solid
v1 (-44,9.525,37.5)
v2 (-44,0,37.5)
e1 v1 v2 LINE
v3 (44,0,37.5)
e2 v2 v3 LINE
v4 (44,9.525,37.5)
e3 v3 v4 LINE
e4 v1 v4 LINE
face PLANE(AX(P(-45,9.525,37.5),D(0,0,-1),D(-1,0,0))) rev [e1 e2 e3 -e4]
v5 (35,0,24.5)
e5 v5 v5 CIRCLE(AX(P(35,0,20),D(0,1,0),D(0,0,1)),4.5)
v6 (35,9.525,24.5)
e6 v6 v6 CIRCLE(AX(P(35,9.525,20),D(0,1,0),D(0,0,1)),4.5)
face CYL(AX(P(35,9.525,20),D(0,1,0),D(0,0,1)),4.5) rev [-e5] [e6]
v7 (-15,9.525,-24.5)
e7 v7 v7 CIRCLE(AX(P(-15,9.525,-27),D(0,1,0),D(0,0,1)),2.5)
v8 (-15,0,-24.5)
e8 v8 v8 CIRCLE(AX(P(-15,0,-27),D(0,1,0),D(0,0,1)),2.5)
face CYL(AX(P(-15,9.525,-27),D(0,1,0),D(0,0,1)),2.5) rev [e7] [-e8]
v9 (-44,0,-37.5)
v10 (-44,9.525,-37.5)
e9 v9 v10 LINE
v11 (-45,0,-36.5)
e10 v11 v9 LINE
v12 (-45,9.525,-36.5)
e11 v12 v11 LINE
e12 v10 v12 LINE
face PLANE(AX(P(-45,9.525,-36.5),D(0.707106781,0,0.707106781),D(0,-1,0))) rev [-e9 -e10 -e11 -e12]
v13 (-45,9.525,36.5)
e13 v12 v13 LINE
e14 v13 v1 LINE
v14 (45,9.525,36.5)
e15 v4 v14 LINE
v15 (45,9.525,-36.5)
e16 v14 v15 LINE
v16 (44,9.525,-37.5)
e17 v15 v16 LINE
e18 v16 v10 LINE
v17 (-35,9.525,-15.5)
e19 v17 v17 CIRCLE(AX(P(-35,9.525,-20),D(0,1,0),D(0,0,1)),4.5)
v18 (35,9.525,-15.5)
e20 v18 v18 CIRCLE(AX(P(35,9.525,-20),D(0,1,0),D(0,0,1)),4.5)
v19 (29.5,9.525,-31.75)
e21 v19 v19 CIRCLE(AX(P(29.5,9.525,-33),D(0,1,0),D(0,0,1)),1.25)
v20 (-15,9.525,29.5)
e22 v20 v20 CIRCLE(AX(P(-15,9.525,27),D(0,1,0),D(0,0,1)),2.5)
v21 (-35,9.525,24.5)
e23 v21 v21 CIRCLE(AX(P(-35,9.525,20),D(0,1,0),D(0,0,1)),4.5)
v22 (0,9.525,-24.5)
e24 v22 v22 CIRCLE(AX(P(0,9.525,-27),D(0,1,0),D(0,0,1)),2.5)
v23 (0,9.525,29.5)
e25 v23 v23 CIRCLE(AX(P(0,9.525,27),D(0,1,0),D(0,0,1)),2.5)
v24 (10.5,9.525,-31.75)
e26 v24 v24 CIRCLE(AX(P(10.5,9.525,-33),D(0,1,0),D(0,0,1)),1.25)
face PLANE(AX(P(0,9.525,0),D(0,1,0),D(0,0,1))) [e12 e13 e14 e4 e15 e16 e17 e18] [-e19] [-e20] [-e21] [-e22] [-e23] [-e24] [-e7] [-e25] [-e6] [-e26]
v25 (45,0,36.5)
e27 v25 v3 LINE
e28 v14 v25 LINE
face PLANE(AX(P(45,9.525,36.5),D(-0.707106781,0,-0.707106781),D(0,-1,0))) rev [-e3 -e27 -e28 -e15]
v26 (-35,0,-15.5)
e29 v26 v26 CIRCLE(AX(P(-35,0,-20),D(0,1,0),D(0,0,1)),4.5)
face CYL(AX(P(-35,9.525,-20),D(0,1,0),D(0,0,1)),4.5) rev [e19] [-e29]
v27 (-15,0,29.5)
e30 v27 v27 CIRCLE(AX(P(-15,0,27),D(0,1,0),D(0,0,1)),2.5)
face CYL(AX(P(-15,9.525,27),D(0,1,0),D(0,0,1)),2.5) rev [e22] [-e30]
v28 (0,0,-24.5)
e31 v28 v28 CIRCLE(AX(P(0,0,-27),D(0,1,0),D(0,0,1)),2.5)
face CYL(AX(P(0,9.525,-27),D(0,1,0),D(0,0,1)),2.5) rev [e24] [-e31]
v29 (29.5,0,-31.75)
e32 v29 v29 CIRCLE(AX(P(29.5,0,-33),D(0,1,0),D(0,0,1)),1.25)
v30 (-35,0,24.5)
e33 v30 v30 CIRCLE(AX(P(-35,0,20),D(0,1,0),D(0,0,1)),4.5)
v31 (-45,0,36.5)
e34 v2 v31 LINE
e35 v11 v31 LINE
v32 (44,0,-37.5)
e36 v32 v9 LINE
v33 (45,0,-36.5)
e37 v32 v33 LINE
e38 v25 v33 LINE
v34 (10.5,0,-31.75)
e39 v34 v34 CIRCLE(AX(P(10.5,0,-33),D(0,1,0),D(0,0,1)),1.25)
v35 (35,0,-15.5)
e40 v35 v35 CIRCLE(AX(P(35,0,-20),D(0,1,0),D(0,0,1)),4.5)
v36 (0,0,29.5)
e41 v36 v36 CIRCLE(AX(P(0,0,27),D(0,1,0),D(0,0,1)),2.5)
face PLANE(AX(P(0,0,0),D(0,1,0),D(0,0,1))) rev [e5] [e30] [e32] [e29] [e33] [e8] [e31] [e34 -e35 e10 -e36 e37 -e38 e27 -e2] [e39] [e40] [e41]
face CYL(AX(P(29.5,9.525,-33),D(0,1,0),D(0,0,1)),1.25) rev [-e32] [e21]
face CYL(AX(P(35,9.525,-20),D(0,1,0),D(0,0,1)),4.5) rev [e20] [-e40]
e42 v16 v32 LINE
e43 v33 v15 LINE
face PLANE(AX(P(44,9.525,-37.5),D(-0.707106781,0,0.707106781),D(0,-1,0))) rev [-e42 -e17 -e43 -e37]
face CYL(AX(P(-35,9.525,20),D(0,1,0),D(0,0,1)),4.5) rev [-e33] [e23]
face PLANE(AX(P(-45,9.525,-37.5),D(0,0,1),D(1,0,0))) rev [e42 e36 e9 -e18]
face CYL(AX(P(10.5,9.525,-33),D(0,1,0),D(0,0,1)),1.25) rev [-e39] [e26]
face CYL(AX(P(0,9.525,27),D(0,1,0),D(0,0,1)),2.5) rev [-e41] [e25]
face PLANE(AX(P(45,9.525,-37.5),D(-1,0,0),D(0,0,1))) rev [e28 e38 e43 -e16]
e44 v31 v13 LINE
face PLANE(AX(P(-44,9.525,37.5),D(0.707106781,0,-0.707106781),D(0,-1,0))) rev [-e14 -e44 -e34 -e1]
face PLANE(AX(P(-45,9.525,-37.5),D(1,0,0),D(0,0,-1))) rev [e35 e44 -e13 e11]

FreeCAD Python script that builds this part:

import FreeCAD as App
import Part
import Sketcher
from FreeCAD import Vector
Q = App.Units.Quantity


def edges_at(feature, points):
    """Names of the edges that pass closest to the given points."""
    edges = feature.Shape.Edges
    near = lambda p: min(range(len(edges)), key=lambda i: edges[i].distToShape(Part.Vertex(*p))[0])
    return sorted({f"Edge{near(p) + 1}" for p in points})


def add_polygon(sketch, points):
    """Adds a closed chain of lines whose ends are joined by coincident constraints."""
    first, n = sketch.GeometryCount, len(points)
    for a, b in zip(points, points[1:] + points[:1]):
        sketch.addGeometry(Part.LineSegment(App.Vector(*a, 0), App.Vector(*b, 0)), False)
    for i in range(n):
        sketch.addConstraint(Sketcher.Constraint("Coincident", first + i, 2, first + (i + 1) % n, 1))

doc = App.newDocument("Part")
body = doc.addObject("PartDesign::Body", "Body")

sketch1 = body.newObject("Sketcher::SketchObject", "Sketch")
sketch1.AttachmentSupport = (doc.getObject("XZ_Plane"), [""])
sketch1.MapMode = "FlatFace"
add_polygon(sketch1, [(-45, -37.5), (-45, 37.5), (45, 37.5), (45, -37.5)])
sketch1.addConstraint([
    Sketcher.Constraint("Vertical", 0),
    Sketcher.Constraint("Horizontal", 1),
    Sketcher.Constraint("Vertical", 2),
    Sketcher.Constraint("Horizontal", 3),
    Sketcher.Constraint("Symmetric", 0, 2, 2, 2, -1, 1),
    Sketcher.Constraint("DistanceX", 1, 1, 1, 2, Q("90 mm")),
    Sketcher.Constraint("DistanceY", 0, 1, 0, 2, Q("75 mm")),
])
pad1 = body.newObject("PartDesign::Pad", "Pad")
pad1.Profile = sketch1
pad1.Length = 9.525
pad1.Reversed = True

sketch2 = body.newObject("Sketcher::SketchObject", "Sketch001")
sketch2.AttachmentSupport = (doc.getObject("XZ_Plane"), [""])
sketch2.MapMode = "FlatFace"
sketch2.AttachmentOffset = App.Placement(Vector(0, 0, -9.525), App.Rotation())
sketch2.addGeometry([
    Part.Circle(Vector(-35, -20, 0), Vector(0, 0, 1), 4.5),
    Part.Circle(Vector(35, -20, 0), Vector(0, 0, 1), 4.5),
    Part.Circle(Vector(35, 20, 0), Vector(0, 0, 1), 4.5),
    Part.Circle(Vector(-35, 20, 0), Vector(0, 0, 1), 4.5),
], False)
sketch2.addConstraint([
    Sketcher.Constraint("Equal", 0, 1),
    Sketcher.Constraint("Equal", 1, 2),
    Sketcher.Constraint("Equal", 2, 3),
    Sketcher.Constraint("Symmetric", 0, 3, 2, 3, -1, 1),
    Sketcher.Constraint("Symmetric", 1, 3, 3, 3, -1, 1),
    Sketcher.Constraint("Symmetric", 0, 3, 1, 3, -2),
    Sketcher.Constraint("Diameter", 0, Q("9 mm")),
    Sketcher.Constraint("DistanceX", 0, 3, -1, 1, Q("35 mm")),
    Sketcher.Constraint("DistanceY", 0, 3, -1, 1, Q("20 mm")),
])
doc.recompute()
hole = body.newObject("PartDesign::Hole", "Hole")
hole.Profile = sketch2
hole.ThreadType = "None"
hole.Diameter = 9
hole.DepthType = "ThroughAll"
hole.Reversed = True

sketch3 = body.newObject("Sketcher::SketchObject", "Sketch002")
sketch3.AttachmentSupport = (doc.getObject("XZ_Plane"), [""])
sketch3.MapMode = "FlatFace"
sketch3.AttachmentOffset = App.Placement(Vector(0, 0, -9.525), App.Rotation())
sketch3.addGeometry([
    Part.Circle(Vector(-15, -27, 0), Vector(0, 0, 1), 2.5),
    Part.Circle(Vector(0, -27, 0), Vector(0, 0, 1), 2.5),
    Part.Circle(Vector(0, 27, 0), Vector(0, 0, 1), 2.5),
    Part.Circle(Vector(-15, 27, 0), Vector(0, 0, 1), 2.5),
], False)
sketch3.addConstraint([
    Sketcher.Constraint("Equal", 0, 1),
    Sketcher.Constraint("Equal", 1, 2),
    Sketcher.Constraint("Equal", 2, 3),
    Sketcher.Constraint("Symmetric", 1, 3, 2, 3, -1, 1),
    Sketcher.Constraint("Symmetric", 0, 3, 3, 3, -1),
    Sketcher.Constraint("PointOnObject", 1, 3, -2),
    Sketcher.Constraint("Horizontal", 0, 3, 1, 3),
    Sketcher.Constraint("Diameter", 0, Q("5 mm")),
    Sketcher.Constraint("DistanceX", 0, 3, -1, 1, Q("15 mm")),
    Sketcher.Constraint("DistanceY", 0, 3, -1, 1, Q("27 mm")),
])
doc.recompute()
hole2 = body.newObject("PartDesign::Hole", "Hole001")
hole2.Profile = sketch3
hole2.ThreadType = "None"
hole2.Diameter = 5
hole2.DepthType = "ThroughAll"
hole2.Reversed = True

sketch4 = body.newObject("Sketcher::SketchObject", "Sketch003")
sketch4.AttachmentSupport = (doc.getObject("XZ_Plane"), [""])
sketch4.MapMode = "FlatFace"
sketch4.AttachmentOffset = App.Placement(Vector(0, 0, -9.525), App.Rotation())
sketch4.addGeometry([
    Part.Circle(Vector(10.5, -33, 0), Vector(0, 0, 1), 1.25),
    Part.Circle(Vector(29.5, -33, 0), Vector(0, 0, 1), 1.25),
], False)
sketch4.addConstraint([
    Sketcher.Constraint("Equal", 0, 1),
    Sketcher.Constraint("Horizontal", 0, 3, 1, 3),
    Sketcher.Constraint("Diameter", 0, Q("2.5 mm")),
    Sketcher.Constraint("DistanceY", 0, 3, -1, 1, Q("33 mm")),
    Sketcher.Constraint("DistanceX", 0, 3, 1, 3, Q("19 mm")),
    Sketcher.Constraint("DistanceX", -1, 1, 0, 3, Q("10.5 mm")),
])
doc.recompute()
hole3 = body.newObject("PartDesign::Hole", "Hole002")
hole3.Profile = sketch4
hole3.ThreadType = "None"
hole3.Diameter = 2.5
hole3.DepthType = "ThroughAll"
hole3.Reversed = True
doc.recompute()

chamfer = body.newObject("PartDesign::Chamfer", "Chamfer")
chamfer.Base = (hole3, edges_at(hole3, [
    (45, 4.763, 37.5),
    (-45, 4.763, 37.5),
    (-45, 4.763, -37.5),
    (45, 4.763, -37.5),
]))
chamfer.Size = 1

doc.recompute()
